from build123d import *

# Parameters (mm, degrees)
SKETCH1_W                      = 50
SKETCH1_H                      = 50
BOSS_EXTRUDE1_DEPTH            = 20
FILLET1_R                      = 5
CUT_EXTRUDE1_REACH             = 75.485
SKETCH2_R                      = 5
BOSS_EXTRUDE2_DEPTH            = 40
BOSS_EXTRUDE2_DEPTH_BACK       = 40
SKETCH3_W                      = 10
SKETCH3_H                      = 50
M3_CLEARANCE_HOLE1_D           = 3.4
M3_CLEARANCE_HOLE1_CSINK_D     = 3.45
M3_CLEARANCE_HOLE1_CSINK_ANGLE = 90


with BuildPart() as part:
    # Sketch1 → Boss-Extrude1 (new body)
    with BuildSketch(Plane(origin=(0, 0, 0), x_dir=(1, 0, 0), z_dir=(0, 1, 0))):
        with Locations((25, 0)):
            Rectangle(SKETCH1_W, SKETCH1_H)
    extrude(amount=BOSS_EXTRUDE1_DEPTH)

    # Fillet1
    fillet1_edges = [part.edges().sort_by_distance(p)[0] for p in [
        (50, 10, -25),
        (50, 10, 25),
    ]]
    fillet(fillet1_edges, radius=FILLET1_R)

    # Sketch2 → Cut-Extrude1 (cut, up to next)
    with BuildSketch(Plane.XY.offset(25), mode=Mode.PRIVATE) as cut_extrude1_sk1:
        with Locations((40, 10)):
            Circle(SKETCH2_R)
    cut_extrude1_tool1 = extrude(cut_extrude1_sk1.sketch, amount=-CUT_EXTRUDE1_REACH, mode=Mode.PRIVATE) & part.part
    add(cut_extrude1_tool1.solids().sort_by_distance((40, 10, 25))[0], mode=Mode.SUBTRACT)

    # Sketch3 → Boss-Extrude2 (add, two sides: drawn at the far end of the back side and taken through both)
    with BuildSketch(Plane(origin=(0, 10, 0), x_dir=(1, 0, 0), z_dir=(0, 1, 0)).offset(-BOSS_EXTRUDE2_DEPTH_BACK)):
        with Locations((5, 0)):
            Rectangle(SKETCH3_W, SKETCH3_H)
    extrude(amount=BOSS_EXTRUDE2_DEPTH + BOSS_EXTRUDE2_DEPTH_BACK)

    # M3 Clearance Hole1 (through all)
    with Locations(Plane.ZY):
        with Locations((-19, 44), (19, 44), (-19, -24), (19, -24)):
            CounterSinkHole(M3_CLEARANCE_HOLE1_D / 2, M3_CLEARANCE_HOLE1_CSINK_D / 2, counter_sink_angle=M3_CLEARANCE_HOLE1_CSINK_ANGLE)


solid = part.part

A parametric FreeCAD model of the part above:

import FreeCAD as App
import Part
import Sketcher

V = App.Vector
Q = App.Units.Quantity


def edges_at(feature, points):
    """Names of the edges that pass closest to the given points."""
    edges = feature.Shape.Edges
    near = lambda p: min(range(len(edges)), key=lambda i: edges[i].distToShape(Part.Vertex(*p))[0])
    return sorted({f"Edge{near(p) + 1}" for p in points})


def add_polygon(sketch, points):
    """Adds a closed chain of lines whose ends are joined by coincident constraints."""
    first, n = sketch.GeometryCount, len(points)
    for a, b in zip(points, points[1:] + points[:1]):
        sketch.addGeometry(Part.LineSegment(App.Vector(*a, 0), App.Vector(*b, 0)), False)
    for i in range(n):
        sketch.addConstraint(Sketcher.Constraint("Coincident", first + i, 2, first + (i + 1) % n, 1))

doc = App.newDocument("Part")
body = doc.addObject("PartDesign::Body", "Body")

# Sketch on XZ plane
sketch1 = body.newObject("Sketcher::SketchObject", "Sketch")
sketch1.AttachmentSupport = (doc.getObject("XZ_Plane"), [""])
sketch1.MapMode = "FlatFace"
add_polygon(sketch1, [(0, -25), (0, 25), (50, 25), (50, -25)])  # lines 0-3
sketch1.addConstraint([
    Sketcher.Constraint("Vertical", 0),
    Sketcher.Constraint("Horizontal", 1),
    Sketcher.Constraint("Vertical", 2),
    Sketcher.Constraint("Horizontal", 3),
    Sketcher.Constraint("Symmetric", 0, 2, 3, 2, -1, 1),
    Sketcher.Constraint("Equal", 3, 0),
    Sketcher.Constraint("DistanceX", 1, 1, 1, 2, Q("50 mm")),
])
pad1 = body.newObject("PartDesign::Pad", "Pad")
pad1.Profile = sketch1
pad1.Length = 20
pad1.Reversed = True
doc.recompute()

fillet = body.newObject("PartDesign::Fillet", "Fillet")
fillet.Base = (pad1, edges_at(pad1, [(50, 10, -25), (50, 10, 25)]))
fillet.Radius = 5

# Sketch on XY plane
sketch2 = body.newObject("Sketcher::SketchObject", "Sketch001")
sketch2.AttachmentSupport = (doc.getObject("XY_Plane"), [""])
sketch2.MapMode = "FlatFace"
sketch2.AttachmentOffset = App.Placement(V(0, 0, 25), App.Rotation())
sketch2.addGeometry(Part.Circle(V(40, 10, 0), V(0, 0, 1), 5), False)
sketch2.addConstraint([
    Sketcher.Constraint("Diameter", 0, Q("10 mm")),
    Sketcher.Constraint("DistanceX", -1, 1, 0, 3, Q("40 mm")),
    Sketcher.Constraint("DistanceY", -1, 1, 0, 3, Q("10 mm")),
])
pocket1 = body.newObject("PartDesign::Pocket", "Pocket")
pocket1.Profile = sketch2
pocket1.Type = "UpToFirst"

# Sketch on XZ plane
sketch3 = body.newObject("Sketcher::SketchObject", "Sketch002")
sketch3.AttachmentSupport = (doc.getObject("XZ_Plane"), [""])
sketch3.MapMode = "FlatFace"
sketch3.AttachmentOffset = App.Placement(V(0, 0, -10), App.Rotation())
add_polygon(sketch3, [(0, -25), (0, 25), (10, 25), (10, -25)])  # lines 0-3
sketch3.addConstraint([
    Sketcher.Constraint("Vertical", 0),
    Sketcher.Constraint("Horizontal", 1),
    Sketcher.Constraint("Vertical", 2),
    Sketcher.Constraint("Horizontal", 3),
    Sketcher.Constraint("Symmetric", 0, 2, 3, 2, -1, 1),
    Sketcher.Constraint("DistanceX", 1, 1, 1, 2, Q("10 mm")),
    Sketcher.Constraint("DistanceY", 0, 1, 0, 2, Q("50 mm")),
])
pad2 = body.newObject("PartDesign::Pad", "Pad001")
pad2.Profile = sketch3
pad2.Type = "TwoLengths"
pad2.Length = 40
pad2.Length2 = 40
pad2.Reversed = True

# Sketch on YZ plane
sketch4 = body.newObject("Sketcher::SketchObject", "Sketch003")
sketch4.AttachmentSupport = (doc.getObject("YZ_Plane"), [""])
sketch4.MapMode = "FlatFace"
sketch4.addGeometry([
    Part.Circle(V(44, -19, 0), V(0, 0, 1), 1.7),
    Part.Circle(V(44, 19, 0), V(0, 0, 1), 1.7),
    Part.Circle(V(-24, -19, 0), V(0, 0, 1), 1.7),
    Part.Circle(V(-24, 19, 0), V(0, 0, 1), 1.7),
], False)
sketch4.addConstraint([
    Sketcher.Constraint("Equal", 0, 1),
    Sketcher.Constraint("Equal", 1, 2),
    Sketcher.Constraint("Equal", 2, 3),
    Sketcher.Constraint("Symmetric", 0, 3, 1, 3, -1),
    Sketcher.Constraint("Symmetric", 2, 3, 3, 3, -1),
    Sketcher.Constraint("Horizontal", 0, 3, 2, 3),
    Sketcher.Constraint("Diameter", 0, Q("3.4 mm")),
    Sketcher.Constraint("DistanceX", -1, 1, 0, 3, Q("44 mm")),
    Sketcher.Constraint("DistanceY", 0, 3, -1, 1, Q("19 mm")),
    Sketcher.Constraint("DistanceX", 2, 3, -1, 1, Q("24 mm")),
])
doc.recompute()
hole = body.newObject("PartDesign::Hole", "Hole")
hole.Profile = sketch4
hole.ThreadType = "None"
hole.Diameter = 3.4
hole.DepthType = "ThroughAll"
hole.HoleCutType = "Countersink"
hole.HoleCutDiameter = 3.45
hole.HoleCutCountersinkAngle = 90
hole.Reversed = True

doc.recompute()
